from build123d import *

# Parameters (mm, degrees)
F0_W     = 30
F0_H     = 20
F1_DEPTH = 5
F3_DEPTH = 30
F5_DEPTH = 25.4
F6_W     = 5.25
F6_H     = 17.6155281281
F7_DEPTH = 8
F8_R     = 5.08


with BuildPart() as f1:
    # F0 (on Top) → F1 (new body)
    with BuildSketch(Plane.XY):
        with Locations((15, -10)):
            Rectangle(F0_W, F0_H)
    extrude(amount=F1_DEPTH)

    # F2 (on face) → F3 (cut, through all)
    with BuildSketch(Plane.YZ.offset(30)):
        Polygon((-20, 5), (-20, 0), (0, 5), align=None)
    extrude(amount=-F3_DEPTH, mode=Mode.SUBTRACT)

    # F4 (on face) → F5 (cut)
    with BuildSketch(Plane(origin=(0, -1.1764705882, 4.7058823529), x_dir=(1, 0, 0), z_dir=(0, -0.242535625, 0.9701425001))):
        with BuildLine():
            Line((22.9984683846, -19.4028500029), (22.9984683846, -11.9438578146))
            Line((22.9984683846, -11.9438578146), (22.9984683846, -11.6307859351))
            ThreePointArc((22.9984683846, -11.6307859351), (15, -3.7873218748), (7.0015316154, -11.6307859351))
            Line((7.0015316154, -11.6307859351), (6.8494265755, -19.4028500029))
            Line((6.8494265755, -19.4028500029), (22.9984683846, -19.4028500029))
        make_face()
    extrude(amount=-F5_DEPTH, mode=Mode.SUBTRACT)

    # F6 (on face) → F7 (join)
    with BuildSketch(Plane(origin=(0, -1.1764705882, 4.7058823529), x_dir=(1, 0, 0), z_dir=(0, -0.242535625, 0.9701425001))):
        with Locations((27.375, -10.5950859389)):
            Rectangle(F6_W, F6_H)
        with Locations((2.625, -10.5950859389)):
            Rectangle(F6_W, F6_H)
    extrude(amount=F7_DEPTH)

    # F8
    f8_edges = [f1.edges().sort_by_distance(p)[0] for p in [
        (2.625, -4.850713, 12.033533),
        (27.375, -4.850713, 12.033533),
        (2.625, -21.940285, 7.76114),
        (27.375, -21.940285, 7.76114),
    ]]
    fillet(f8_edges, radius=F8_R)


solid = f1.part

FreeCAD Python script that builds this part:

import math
import FreeCAD as App
import Part
import Sketcher

V = App.Vector


def edges_at(feature, points):
    """Names of the edges that pass closest to the given points."""
    edges = feature.Shape.Edges
    near = lambda p: min(range(len(edges)), key=lambda i: edges[i].distToShape(Part.Vertex(*p))[0])
    return sorted({f"Edge{near(p) + 1}" for p in points})


def add_polygon(sketch, points):
    """Adds a closed chain of lines whose ends are joined by coincident constraints."""
    first, n = sketch.GeometryCount, len(points)
    for a, b in zip(points, points[1:] + points[:1]):
        sketch.addGeometry(Part.LineSegment(App.Vector(*a, 0), App.Vector(*b, 0)), False)
    for i in range(n):
        sketch.addConstraint(Sketcher.Constraint("Coincident", first + i, 2, first + (i + 1) % n, 1))

doc = App.newDocument("Part")
body = doc.addObject("PartDesign::Body", "Body")

sketch1 = doc.addObject("Sketcher::SketchObject", "Sketch")
body.addObject(sketch1)
sketch1.AttachmentSupport = (doc.XY_Plane, [""])
sketch1.MapMode = "FlatFace"
add_polygon(sketch1, [(0, 0), (0, -20), (30, -20), (30, 0)])
sketch1.addConstraint(Sketcher.Constraint("Vertical", 0))
sketch1.addConstraint(Sketcher.Constraint("Horizontal", 1))
sketch1.addConstraint(Sketcher.Constraint("Vertical", 2))
sketch1.addConstraint(Sketcher.Constraint("Horizontal", 3))
sketch1.addConstraint(Sketcher.Constraint("Coincident", 3, 2, -1, 1))
sketch1.addConstraint(Sketcher.Constraint("DistanceX", 1, 1, 1, 2, 30.0))
sketch1.addConstraint(Sketcher.Constraint("DistanceY", 0, 2, 0, 1, 20.0))
pad1 = doc.addObject("PartDesign::Pad", "Pad")
body.addObject(pad1)
pad1.Profile = sketch1
pad1.Length = 5

sketch2 = doc.addObject("Sketcher::SketchObject", "Sketch001")
body.addObject(sketch2)
sketch2.AttachmentSupport = (doc.YZ_Plane, [""])
sketch2.MapMode = "FlatFace"
sketch2.AttachmentOffset = App.Placement(V(0, 0, 30), App.Rotation())
add_polygon(sketch2, [(-20, 5), (-20, 0), (0, 5)])
sketch2.addConstraint(Sketcher.Constraint("Vertical", 0))
sketch2.addConstraint(Sketcher.Constraint("Horizontal", 2))
sketch2.addConstraint(Sketcher.Constraint("PointOnObject", 0, 2, -1))
sketch2.addConstraint(Sketcher.Constraint("PointOnObject", 1, 2, -2))
sketch2.addConstraint(Sketcher.Constraint("DistanceX", 2, 2, 2, 1, 20.0))
sketch2.addConstraint(Sketcher.Constraint("DistanceY", 0, 2, 0, 1, 5.0))
pocket1 = doc.addObject("PartDesign::Pocket", "Pocket")
body.addObject(pocket1)
pocket1.Profile = sketch2
pocket1.Type = "ThroughAll"

sketch3 = doc.addObject("Sketcher::SketchObject", "Sketch002")
body.addObject(sketch3)
sketch3.Placement = App.Placement(V(0, -1.176471, 4.705882), App.Rotation(V(1, 0, 0), V(0, 0.9701425, 0.242535625), V(0, -0.242535625, 0.9701425), "ZXY"))
sketch3.addGeometry(Part.LineSegment(V(23, -19, 0), V(23, -12, 0)), False)
sketch3.addGeometry(Part.ArcOfCircle(Part.Circle(V(15, -12, 0), V(0, 0, 1), 8), math.radians(1), math.radians(179)), False)
sketch3.addGeometry(Part.LineSegment(V(7, -12, 0), V(7, -19, 0)), False)
sketch3.addGeometry(Part.LineSegment(V(7, -19, 0), V(23, -19, 0)), False)
sketch3.addConstraint(Sketcher.Constraint("Coincident", 0, 2, 1, 1))
sketch3.addConstraint(Sketcher.Constraint("Tangent", 1, 2, 2, 1))
sketch3.addConstraint(Sketcher.Constraint("Coincident", 2, 2, 3, 1))
sketch3.addConstraint(Sketcher.Constraint("Coincident", 3, 2, 0, 1))
sketch3.addConstraint(Sketcher.Constraint("Vertical", 0))
sketch3.addConstraint(Sketcher.Constraint("Horizontal", 3))
sketch3.addConstraint(Sketcher.Constraint("Horizontal", 0, 2, 1, 2))
sketch3.addConstraint(Sketcher.Constraint("Radius", 1, 8.0))
sketch3.addConstraint(Sketcher.Constraint("DistanceX", -1, 1, 1, 3, 15.0))
sketch3.addConstraint(Sketcher.Constraint("DistanceX", 3, 1, 3, 2, 16.149042))
sketch3.addConstraint(Sketcher.Constraint("DistanceY", 0, 1, 0, 2, 7.772064))
sketch3.addConstraint(Sketcher.Constraint("DistanceY", 1, 3, -1, 1, 11.787322))
pocket2 = doc.addObject("PartDesign::Pocket", "Pocket001")
body.addObject(pocket2)
pocket2.Profile = sketch3
pocket2.Length = 25.4

sketch4 = doc.addObject("Sketcher::SketchObject", "Sketch003")
body.addObject(sketch4)
sketch4.Placement = App.Placement(V(0, -1.176471, 4.705882), App.Rotation(V(1, 0, 0), V(0, 0.9701425, 0.242535625), V(0, -0.242535625, 0.9701425), "ZXY"))
add_polygon(sketch4, [(25, -2), (25, -19), (30, -19), (30, -2)])
add_polygon(sketch4, [(0, -2), (0, -19), (5, -19), (5, -2)])
sketch4.addConstraint(Sketcher.Constraint("Vertical", 0))
sketch4.addConstraint(Sketcher.Constraint("Horizontal", 1))
sketch4.addConstraint(Sketcher.Constraint("Vertical", 2))
sketch4.addConstraint(Sketcher.Constraint("Horizontal", 3))
sketch4.addConstraint(Sketcher.Constraint("Vertical", 4))
sketch4.addConstraint(Sketcher.Constraint("Horizontal", 5))
sketch4.addConstraint(Sketcher.Constraint("Vertical", 6))
sketch4.addConstraint(Sketcher.Constraint("Horizontal", 7))
sketch4.addConstraint(Sketcher.Constraint("PointOnObject", 4, 2, -2))
sketch4.addConstraint(Sketcher.Constraint("Horizontal", 1, 2, 4, 2))
sketch4.addConstraint(Sketcher.Constraint("Horizontal", 3, 2, 6, 2))
sketch4.addConstraint(Sketcher.Constraint("Equal", 3, 5))
sketch4.addConstraint(Sketcher.Constraint("DistanceX", -1, 1, 1, 2, 30.0))
sketch4.addConstraint(Sketcher.Constraint("DistanceX", 1, 1, 1, 2, 5.25))
sketch4.addConstraint(Sketcher.Constraint("DistanceY", 0, 2, 0, 1, 17.615528))
sketch4.addConstraint(Sketcher.Constraint("DistanceY", 0, 2, -1, 1, 19.40285))
pad2 = doc.addObject("PartDesign::Pad", "Pad001")
body.addObject(pad2)
pad2.Profile = sketch4
pad2.Length = 8
doc.recompute()

fillet = doc.addObject("PartDesign::Fillet", "Fillet")
body.addObject(fillet)
fillet.Base = (pad2, edges_at(pad2, [
    (2.625, -4.851, 12.034),
    (27.375, -4.851, 12.034),
    (2.625, -21.94, 7.761),
    (27.375, -21.94, 7.761),
]))
fillet.Radius = 5.08

doc.recompute()
